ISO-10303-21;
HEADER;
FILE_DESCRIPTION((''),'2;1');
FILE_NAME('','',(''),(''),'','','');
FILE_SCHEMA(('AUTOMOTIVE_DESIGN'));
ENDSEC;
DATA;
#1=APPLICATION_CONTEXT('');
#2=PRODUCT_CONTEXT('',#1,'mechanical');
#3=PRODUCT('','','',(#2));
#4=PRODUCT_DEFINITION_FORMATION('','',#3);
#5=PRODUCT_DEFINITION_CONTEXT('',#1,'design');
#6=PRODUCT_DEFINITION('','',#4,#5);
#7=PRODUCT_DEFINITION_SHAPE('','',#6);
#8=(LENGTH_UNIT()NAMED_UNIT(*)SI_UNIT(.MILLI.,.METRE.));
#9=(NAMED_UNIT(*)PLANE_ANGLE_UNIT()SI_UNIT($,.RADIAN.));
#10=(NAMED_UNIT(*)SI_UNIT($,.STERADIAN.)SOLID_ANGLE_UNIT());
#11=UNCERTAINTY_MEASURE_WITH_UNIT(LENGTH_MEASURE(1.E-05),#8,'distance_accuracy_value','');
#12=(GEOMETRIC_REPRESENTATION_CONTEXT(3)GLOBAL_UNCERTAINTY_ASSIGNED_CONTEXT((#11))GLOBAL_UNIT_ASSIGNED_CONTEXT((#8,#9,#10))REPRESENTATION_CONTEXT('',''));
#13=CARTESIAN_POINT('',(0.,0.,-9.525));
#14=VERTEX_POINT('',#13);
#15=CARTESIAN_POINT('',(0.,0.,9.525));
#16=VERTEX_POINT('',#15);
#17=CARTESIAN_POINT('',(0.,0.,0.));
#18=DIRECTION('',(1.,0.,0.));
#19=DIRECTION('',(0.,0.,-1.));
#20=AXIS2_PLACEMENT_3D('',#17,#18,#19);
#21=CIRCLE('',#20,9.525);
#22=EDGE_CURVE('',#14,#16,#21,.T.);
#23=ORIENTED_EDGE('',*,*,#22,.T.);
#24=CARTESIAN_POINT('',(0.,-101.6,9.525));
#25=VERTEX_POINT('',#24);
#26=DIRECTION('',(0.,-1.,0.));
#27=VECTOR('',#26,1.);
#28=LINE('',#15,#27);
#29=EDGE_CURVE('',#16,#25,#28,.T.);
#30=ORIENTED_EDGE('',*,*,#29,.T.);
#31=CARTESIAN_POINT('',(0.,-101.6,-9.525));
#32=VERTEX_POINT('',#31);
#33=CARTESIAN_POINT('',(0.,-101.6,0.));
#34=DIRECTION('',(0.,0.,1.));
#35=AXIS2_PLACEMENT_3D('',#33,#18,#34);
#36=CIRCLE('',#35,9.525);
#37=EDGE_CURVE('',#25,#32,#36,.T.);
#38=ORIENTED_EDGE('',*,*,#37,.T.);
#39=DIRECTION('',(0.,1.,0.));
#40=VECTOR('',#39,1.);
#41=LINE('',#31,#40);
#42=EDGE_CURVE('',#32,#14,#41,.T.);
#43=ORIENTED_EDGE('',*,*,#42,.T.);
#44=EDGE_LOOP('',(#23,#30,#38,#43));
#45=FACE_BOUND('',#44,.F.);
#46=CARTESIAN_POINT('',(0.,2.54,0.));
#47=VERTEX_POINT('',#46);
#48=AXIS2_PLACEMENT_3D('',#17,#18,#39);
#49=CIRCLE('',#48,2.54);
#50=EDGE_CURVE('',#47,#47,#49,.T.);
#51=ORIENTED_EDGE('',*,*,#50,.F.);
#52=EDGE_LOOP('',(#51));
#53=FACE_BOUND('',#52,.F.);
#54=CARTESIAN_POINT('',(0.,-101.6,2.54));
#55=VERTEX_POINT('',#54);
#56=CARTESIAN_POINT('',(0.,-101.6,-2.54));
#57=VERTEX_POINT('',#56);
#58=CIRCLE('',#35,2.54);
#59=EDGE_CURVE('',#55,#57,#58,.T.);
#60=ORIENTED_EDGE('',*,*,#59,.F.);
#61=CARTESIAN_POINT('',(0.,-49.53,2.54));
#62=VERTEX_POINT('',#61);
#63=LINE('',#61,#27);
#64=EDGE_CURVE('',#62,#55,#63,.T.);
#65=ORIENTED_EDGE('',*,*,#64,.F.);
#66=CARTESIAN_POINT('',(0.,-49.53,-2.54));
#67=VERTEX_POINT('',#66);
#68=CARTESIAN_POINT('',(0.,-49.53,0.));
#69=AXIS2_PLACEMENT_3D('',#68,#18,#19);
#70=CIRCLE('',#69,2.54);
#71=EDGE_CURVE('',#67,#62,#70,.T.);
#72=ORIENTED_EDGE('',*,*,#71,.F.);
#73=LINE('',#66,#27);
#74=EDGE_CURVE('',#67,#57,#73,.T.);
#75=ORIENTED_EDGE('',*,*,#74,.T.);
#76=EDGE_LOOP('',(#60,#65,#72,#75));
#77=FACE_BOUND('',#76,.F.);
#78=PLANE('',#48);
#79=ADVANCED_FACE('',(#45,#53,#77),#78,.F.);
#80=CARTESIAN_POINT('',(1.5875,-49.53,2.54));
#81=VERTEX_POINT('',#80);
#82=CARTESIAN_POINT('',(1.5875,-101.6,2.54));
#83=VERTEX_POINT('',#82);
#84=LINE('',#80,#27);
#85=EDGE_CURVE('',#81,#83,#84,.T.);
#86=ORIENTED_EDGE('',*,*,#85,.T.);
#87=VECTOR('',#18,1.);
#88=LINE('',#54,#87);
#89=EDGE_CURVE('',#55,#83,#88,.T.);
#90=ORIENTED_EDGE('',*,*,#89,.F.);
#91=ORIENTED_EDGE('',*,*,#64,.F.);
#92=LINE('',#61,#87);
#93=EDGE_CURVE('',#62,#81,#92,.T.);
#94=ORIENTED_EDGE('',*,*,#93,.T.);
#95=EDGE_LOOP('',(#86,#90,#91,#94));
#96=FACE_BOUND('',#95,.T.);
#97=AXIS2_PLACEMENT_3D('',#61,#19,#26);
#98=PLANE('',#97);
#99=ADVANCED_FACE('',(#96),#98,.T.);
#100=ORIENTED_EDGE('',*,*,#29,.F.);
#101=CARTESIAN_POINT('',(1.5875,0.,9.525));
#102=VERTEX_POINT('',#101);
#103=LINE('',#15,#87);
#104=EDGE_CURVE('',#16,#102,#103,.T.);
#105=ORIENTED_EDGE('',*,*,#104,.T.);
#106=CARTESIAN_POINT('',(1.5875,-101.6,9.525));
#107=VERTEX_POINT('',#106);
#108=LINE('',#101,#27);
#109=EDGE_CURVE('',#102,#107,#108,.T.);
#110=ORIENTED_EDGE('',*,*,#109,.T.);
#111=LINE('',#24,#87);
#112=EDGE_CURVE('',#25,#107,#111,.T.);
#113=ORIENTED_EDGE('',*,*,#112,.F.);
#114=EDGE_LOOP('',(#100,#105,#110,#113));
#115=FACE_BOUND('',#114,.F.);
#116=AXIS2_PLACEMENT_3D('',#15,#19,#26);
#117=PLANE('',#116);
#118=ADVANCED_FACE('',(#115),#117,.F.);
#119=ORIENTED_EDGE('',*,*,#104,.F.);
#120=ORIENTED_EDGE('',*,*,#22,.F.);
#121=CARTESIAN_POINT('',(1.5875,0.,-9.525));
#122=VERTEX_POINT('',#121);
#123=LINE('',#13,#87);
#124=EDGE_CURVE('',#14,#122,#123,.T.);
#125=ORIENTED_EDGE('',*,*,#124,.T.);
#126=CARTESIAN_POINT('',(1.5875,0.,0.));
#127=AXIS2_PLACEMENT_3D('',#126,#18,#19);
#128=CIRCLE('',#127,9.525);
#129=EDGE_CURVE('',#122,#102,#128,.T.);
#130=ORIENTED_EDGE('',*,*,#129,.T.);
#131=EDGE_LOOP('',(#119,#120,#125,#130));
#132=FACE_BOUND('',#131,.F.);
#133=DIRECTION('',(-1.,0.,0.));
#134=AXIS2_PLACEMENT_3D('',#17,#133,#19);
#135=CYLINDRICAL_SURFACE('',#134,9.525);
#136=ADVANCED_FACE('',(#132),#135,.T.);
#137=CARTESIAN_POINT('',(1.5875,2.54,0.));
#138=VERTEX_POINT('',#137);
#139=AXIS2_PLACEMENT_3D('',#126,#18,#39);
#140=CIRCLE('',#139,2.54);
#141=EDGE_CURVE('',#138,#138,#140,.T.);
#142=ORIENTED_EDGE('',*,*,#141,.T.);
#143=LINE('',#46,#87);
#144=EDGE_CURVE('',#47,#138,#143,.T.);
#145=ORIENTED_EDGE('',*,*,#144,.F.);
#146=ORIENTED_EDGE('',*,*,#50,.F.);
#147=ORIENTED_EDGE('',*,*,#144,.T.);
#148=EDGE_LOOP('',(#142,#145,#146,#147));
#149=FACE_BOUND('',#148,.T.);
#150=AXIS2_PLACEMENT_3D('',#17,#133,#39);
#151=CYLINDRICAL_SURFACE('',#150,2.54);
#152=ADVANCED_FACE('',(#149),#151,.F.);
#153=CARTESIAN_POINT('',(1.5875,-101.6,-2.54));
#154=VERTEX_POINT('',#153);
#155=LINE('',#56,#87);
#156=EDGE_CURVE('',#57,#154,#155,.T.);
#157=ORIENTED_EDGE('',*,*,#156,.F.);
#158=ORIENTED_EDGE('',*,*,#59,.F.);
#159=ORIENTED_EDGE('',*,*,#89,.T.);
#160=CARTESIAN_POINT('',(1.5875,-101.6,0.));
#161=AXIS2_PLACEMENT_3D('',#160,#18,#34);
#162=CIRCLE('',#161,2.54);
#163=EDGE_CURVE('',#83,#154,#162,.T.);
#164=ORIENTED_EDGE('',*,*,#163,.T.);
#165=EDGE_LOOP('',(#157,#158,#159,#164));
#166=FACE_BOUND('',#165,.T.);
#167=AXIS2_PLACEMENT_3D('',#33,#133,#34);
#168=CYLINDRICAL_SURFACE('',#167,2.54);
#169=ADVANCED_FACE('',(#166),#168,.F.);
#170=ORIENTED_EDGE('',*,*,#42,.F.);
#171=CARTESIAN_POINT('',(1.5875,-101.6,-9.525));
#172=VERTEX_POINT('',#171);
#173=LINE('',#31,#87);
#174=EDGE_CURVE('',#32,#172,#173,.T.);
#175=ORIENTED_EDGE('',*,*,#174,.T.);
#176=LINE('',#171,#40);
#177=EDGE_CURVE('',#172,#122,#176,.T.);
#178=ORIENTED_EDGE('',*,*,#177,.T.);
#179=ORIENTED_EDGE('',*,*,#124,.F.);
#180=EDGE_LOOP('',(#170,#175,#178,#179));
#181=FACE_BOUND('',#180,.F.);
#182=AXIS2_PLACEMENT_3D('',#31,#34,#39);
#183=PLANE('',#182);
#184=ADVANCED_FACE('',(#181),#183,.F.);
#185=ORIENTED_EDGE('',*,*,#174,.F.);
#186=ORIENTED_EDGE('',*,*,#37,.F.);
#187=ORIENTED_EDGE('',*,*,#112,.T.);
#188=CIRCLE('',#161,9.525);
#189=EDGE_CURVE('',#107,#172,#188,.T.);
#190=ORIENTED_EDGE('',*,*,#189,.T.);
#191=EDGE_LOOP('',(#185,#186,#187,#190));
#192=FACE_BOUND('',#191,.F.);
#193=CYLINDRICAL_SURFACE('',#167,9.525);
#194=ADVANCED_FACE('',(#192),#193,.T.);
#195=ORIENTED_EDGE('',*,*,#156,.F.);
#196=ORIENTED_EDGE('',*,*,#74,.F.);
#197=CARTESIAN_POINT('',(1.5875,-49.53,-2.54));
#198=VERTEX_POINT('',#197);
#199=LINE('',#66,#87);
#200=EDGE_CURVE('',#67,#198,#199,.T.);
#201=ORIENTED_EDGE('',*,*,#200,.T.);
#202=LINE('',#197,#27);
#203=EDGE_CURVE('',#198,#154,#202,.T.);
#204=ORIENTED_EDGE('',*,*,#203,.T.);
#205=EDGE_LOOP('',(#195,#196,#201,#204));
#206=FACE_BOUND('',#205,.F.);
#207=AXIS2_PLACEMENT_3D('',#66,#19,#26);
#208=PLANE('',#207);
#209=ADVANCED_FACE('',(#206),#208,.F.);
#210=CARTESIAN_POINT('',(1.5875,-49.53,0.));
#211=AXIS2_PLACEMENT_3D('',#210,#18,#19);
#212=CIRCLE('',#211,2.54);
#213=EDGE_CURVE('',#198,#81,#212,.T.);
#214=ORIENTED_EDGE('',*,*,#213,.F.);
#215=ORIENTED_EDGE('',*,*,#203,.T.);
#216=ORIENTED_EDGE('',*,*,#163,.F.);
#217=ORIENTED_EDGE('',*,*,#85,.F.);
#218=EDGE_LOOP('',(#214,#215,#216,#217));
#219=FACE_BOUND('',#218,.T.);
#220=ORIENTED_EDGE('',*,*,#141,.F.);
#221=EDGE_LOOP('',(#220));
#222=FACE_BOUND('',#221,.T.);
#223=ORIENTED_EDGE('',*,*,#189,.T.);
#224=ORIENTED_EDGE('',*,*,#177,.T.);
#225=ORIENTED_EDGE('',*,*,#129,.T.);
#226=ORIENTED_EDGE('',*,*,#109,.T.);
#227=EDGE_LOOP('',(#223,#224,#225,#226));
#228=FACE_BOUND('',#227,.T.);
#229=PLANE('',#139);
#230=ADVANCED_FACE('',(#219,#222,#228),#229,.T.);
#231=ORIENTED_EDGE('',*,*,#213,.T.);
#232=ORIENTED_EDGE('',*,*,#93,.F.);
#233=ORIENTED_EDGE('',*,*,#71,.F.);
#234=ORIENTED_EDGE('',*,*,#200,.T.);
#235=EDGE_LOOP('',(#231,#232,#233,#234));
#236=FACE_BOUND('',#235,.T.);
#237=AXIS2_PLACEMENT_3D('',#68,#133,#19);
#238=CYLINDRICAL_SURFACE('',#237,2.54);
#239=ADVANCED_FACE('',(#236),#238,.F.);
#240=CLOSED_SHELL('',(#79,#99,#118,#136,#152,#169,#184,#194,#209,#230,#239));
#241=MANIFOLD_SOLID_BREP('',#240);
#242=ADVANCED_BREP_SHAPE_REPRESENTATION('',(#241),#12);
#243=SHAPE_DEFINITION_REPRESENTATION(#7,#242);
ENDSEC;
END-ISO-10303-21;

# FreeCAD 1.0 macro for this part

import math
import FreeCAD as App
import Part
import Sketcher

V = App.Vector
Q = App.Units.Quantity

doc = App.newDocument("Part")
body = doc.addObject("PartDesign::Body", "Body")

# Sketch on YZ plane
sketch1 = body.newObject("Sketcher::SketchObject", "Sketch")
sketch1.AttachmentSupport = (doc.getObject("YZ_Plane"), [""])
sketch1.MapMode = "FlatFace"
sketch1.addGeometry(Part.LineSegment(V(-101.6, -9.5, 0), V(0, -9.5, 0)), False)
sketch1.addGeometry(Part.ArcOfCircle(Part.Circle(V(0, 0, 0), V(0, 0, 1), 9.5), math.radians(-90), math.radians(90)), False)
sketch1.addGeometry(Part.LineSegment(V(0, 9.5, 0), V(-101.6, 9.5, 0)), False)
sketch1.addGeometry(Part.ArcOfCircle(Part.Circle(V(-101.6, 0, 0), V(0, 0, 1), 9.5), math.radians(90), math.radians(270)), False)
sketch1.addGeometry(Part.ArcOfCircle(Part.Circle(V(-49.5, 0, 0), V(0, 0, 1), 2.5), math.radians(-90), math.radians(90)), False)
sketch1.addGeometry(Part.LineSegment(V(-49.5, -2.5, 0), V(-101.6, -2.5, 0)), False)
sketch1.addGeometry(Part.ArcOfCircle(Part.Circle(V(-101.6, 0, 0), V(0, 0, 1), 2.5), math.radians(90), math.radians(270)), False)
sketch1.addGeometry(Part.LineSegment(V(-101.6, 2.5, 0), V(-49.5, 2.5, 0)), False)
sketch1.addGeometry(Part.Circle(V(0, 0, 0), V(0, 0, 1), 2.5), False)
sketch1.addConstraint(Sketcher.Constraint("Tangent", 0, 2, 1, 1))
sketch1.addConstraint(Sketcher.Constraint("Tangent", 1, 2, 2, 1))
sketch1.addConstraint(Sketcher.Constraint("Tangent", 2, 2, 3, 1))
sketch1.addConstraint(Sketcher.Constraint("Tangent", 3, 2, 0, 1))
sketch1.addConstraint(Sketcher.Constraint("Tangent", 4, 1, 5, 1))
sketch1.addConstraint(Sketcher.Constraint("Tangent", 5, 2, 6, 2))
sketch1.addConstraint(Sketcher.Constraint("Tangent", 6, 1, 7, 1))
sketch1.addConstraint(Sketcher.Constraint("Tangent", 7, 2, 4, 2))
sketch1.addConstraint(Sketcher.Constraint("Horizontal", 0))
sketch1.addConstraint(Sketcher.Constraint("Horizontal", 2))
sketch1.addConstraint(Sketcher.Constraint("Horizontal", 5))
sketch1.addConstraint(Sketcher.Constraint("Horizontal", 7))
sketch1.addConstraint(Sketcher.Constraint("Coincident", 1, 3, -1, 1))
sketch1.addConstraint(Sketcher.Constraint("Coincident", 8, 3, -1, 1))
sketch1.addConstraint(Sketcher.Constraint("Coincident", 6, 3, 3, 3))
sketch1.addConstraint(Sketcher.Constraint("Equal", 6, 8))
sketch1.addConstraint(Sketcher.Constraint("Diameter", 8, Q("0.2 in")))
sketch1.addConstraint(Sketcher.Constraint("DistanceX", 5, 2, 5, 1, Q("2.05 in")))
sketch1.addConstraint(Sketcher.Constraint("DistanceX", 0, 1, 0, 2, Q("4 in")))
sketch1.addConstraint(Sketcher.Constraint("Radius", 1, Q("0.375 in")))
pad1 = body.newObject("PartDesign::Pad", "Pad")
pad1.Profile = sketch1
pad1.Length = Q("0.0625 in")

doc.recompute()
